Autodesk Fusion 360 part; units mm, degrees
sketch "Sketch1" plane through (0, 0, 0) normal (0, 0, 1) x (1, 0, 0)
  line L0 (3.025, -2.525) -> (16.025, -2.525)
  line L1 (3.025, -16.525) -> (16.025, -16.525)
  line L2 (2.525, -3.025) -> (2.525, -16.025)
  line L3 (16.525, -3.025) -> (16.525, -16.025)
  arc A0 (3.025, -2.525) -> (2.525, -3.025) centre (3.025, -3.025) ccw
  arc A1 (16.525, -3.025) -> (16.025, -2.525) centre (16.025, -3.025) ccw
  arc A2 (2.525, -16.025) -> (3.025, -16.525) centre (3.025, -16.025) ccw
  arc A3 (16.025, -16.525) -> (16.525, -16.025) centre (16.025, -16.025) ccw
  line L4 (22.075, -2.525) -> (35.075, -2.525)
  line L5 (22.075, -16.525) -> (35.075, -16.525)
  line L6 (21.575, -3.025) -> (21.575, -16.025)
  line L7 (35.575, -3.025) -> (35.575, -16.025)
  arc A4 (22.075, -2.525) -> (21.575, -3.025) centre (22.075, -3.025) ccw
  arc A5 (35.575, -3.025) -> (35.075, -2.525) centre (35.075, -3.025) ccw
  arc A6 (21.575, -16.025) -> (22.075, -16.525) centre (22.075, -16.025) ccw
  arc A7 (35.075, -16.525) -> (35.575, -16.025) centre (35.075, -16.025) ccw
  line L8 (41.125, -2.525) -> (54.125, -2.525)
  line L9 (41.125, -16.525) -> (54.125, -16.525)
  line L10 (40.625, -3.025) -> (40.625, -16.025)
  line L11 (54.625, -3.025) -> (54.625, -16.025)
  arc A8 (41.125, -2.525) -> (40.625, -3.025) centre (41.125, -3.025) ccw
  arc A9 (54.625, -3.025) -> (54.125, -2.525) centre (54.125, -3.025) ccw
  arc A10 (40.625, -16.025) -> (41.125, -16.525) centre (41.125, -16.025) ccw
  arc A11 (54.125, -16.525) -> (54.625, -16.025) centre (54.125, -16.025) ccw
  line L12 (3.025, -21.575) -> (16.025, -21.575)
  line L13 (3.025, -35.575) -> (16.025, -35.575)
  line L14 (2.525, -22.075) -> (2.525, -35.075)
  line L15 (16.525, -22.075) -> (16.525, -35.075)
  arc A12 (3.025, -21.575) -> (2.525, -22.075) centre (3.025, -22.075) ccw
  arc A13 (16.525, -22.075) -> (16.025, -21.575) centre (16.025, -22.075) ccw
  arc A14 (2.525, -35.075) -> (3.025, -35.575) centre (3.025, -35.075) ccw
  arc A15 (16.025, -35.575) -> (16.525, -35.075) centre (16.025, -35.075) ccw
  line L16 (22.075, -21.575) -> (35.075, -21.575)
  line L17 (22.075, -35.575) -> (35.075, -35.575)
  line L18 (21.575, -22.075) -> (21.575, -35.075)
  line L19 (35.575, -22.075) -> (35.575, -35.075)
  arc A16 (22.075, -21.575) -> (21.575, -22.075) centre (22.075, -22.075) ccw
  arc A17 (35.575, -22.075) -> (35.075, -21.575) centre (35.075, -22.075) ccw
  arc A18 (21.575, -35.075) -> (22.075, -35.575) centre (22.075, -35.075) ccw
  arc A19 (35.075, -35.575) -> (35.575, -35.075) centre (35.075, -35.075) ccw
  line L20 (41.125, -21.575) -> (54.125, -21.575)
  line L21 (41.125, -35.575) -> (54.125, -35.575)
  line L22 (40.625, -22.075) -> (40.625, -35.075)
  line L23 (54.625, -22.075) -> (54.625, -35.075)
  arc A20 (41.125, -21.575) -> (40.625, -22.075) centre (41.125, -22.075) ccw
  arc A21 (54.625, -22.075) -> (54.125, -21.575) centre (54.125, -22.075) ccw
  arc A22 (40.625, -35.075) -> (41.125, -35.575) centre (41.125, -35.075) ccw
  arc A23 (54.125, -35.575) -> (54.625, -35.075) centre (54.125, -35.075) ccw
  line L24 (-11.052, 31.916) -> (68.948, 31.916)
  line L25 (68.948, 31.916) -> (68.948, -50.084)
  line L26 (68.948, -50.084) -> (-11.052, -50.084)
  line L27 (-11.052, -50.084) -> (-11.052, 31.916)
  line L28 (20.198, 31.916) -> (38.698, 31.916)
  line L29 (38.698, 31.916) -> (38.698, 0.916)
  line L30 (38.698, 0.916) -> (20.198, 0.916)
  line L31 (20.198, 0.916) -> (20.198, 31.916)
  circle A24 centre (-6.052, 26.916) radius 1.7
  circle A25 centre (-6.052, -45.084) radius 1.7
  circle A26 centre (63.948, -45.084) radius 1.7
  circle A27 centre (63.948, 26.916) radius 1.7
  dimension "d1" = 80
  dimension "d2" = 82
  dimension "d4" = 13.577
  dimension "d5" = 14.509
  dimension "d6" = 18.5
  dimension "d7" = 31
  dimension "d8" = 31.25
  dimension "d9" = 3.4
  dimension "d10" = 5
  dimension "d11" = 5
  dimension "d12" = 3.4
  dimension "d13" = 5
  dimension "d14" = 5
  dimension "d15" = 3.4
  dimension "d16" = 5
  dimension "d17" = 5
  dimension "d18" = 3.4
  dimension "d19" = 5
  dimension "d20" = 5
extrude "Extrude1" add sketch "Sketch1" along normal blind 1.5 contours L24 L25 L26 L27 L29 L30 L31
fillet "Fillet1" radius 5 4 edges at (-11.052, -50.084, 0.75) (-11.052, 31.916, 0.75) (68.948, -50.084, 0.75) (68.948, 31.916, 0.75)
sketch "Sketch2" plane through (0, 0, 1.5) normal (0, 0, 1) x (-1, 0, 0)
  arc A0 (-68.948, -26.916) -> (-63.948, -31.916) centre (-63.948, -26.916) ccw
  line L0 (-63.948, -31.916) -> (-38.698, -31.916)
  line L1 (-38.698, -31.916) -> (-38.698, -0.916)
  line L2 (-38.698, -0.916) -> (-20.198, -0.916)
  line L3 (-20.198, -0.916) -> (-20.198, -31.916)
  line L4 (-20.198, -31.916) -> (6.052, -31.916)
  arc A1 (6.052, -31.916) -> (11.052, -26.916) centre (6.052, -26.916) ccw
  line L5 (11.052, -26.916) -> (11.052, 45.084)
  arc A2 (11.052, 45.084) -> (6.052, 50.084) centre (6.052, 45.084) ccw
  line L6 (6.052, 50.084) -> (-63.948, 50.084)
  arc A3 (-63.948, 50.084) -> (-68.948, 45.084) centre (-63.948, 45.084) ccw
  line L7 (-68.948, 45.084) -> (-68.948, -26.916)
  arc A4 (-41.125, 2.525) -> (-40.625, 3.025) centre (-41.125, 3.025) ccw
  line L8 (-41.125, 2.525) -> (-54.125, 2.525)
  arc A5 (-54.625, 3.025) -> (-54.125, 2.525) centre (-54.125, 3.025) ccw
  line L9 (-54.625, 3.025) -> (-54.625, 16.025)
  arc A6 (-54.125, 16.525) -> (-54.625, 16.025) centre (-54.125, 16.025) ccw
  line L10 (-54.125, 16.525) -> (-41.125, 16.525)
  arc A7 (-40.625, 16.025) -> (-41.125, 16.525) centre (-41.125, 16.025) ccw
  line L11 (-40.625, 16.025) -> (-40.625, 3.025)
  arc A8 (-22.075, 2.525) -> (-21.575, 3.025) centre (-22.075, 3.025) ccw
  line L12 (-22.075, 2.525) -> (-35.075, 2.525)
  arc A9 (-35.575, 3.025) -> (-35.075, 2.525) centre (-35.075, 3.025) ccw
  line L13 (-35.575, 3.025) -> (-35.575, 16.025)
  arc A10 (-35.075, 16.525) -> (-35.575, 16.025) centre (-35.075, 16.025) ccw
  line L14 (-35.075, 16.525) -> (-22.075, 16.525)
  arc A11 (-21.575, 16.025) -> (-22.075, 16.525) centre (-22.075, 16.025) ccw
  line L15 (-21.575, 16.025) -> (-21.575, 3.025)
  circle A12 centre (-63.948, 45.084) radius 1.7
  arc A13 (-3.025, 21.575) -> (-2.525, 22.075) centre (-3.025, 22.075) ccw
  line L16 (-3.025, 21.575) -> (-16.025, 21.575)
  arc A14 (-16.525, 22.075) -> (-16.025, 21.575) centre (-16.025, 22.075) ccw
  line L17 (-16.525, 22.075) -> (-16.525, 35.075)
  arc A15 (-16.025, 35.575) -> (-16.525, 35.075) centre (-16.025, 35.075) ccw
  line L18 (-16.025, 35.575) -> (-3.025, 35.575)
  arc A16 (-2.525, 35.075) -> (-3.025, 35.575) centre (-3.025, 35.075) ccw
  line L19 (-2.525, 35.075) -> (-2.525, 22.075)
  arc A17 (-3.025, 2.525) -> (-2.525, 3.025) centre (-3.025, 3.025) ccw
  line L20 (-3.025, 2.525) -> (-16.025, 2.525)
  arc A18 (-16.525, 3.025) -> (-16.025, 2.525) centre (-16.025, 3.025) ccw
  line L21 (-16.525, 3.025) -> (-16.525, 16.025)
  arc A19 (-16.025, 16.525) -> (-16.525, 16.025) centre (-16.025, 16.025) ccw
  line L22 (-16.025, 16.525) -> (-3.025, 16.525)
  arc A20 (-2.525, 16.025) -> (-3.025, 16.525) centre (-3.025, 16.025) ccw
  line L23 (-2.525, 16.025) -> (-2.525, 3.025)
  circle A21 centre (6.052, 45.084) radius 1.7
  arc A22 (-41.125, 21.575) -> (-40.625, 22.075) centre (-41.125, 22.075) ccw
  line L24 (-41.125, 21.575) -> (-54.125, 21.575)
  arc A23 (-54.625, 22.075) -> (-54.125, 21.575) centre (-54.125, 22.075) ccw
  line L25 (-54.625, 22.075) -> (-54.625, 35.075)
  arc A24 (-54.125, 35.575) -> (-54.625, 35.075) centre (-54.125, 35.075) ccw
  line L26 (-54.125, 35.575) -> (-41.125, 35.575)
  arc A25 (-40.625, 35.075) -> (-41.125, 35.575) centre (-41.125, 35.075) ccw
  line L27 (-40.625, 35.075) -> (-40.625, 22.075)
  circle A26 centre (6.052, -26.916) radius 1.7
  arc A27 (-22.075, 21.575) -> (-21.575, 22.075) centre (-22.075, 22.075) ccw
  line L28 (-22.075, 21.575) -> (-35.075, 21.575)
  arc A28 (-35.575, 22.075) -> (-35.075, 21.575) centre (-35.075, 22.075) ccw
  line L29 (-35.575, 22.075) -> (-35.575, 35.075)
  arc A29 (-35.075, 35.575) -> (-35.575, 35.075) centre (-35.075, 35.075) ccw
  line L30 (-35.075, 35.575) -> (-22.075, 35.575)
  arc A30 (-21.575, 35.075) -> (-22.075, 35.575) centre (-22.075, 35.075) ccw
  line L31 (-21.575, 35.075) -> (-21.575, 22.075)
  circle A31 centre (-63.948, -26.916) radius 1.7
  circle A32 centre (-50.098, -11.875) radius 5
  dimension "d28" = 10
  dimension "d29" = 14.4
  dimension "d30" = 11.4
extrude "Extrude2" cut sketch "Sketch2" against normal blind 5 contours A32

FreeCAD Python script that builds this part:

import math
import FreeCAD as App
import Part
import Sketcher
Q = App.Units.Quantity


def edges_at(feature, points):
    """Names of the edges that pass closest to the given points."""
    edges = feature.Shape.Edges
    near = lambda p: min(range(len(edges)), key=lambda i: edges[i].distToShape(Part.Vertex(*p))[0])
    return sorted({f"Edge{near(p) + 1}" for p in points})


def add_polygon(sketch, points):
    """Adds a closed chain of lines whose ends are joined by coincident constraints."""
    first, n = sketch.GeometryCount, len(points)
    for a, b in zip(points, points[1:] + points[:1]):
        sketch.addGeometry(Part.LineSegment(App.Vector(*a, 0), App.Vector(*b, 0)), False)
    for i in range(n):
        sketch.addConstraint(Sketcher.Constraint("Coincident", first + i, 2, first + (i + 1) % n, 1))

doc = App.newDocument("Part")
body = doc.addObject("PartDesign::Body", "Body")

sketch1 = body.newObject("Sketcher::SketchObject", "Sketch")
sketch1.AttachmentSupport = (doc.getObject("XY_Plane"), [""])
sketch1.MapMode = "FlatFace"
add_polygon(sketch1, [(20.2, 31.9), (-11.1, 31.9), (-11.1, -50.1), (68.9, -50.1), (68.9, 31.9), (38.7, 31.9), (38.7, 0.9), (20.2, 0.9)])
sketch1.addGeometry(Part.Circle(App.Vector(-6.1, -45.1, 0), App.Vector(0, 0, 1), 1.7), False)
sketch1.addGeometry(Part.ArcOfCircle(Part.Circle(App.Vector(3, -22.1, 0), App.Vector(0, 0, 1), 0.5), math.radians(90), math.radians(180)), False)
sketch1.addGeometry(Part.LineSegment(App.Vector(3, -21.6, 0), App.Vector(16, -21.6, 0)), False)
sketch1.addGeometry(Part.ArcOfCircle(Part.Circle(App.Vector(16, -22.1, 0), App.Vector(0, 0, 1), 0.5), math.radians(0), math.radians(90)), False)
sketch1.addGeometry(Part.LineSegment(App.Vector(16.5, -22.1, 0), App.Vector(16.5, -35.1, 0)), False)
sketch1.addGeometry(Part.ArcOfCircle(Part.Circle(App.Vector(16, -35.1, 0), App.Vector(0, 0, 1), 0.5), math.radians(-90), math.radians(0)), False)
sketch1.addGeometry(Part.LineSegment(App.Vector(16, -35.6, 0), App.Vector(3, -35.6, 0)), False)
sketch1.addGeometry(Part.ArcOfCircle(Part.Circle(App.Vector(3, -35.1, 0), App.Vector(0, 0, 1), 0.5), math.radians(180), math.radians(270)), False)
sketch1.addGeometry(Part.LineSegment(App.Vector(2.5, -35.1, 0), App.Vector(2.5, -22.1, 0)), False)
sketch1.addGeometry(Part.ArcOfCircle(Part.Circle(App.Vector(22.1, -22.1, 0), App.Vector(0, 0, 1), 0.5), math.radians(90), math.radians(180)), False)
sketch1.addGeometry(Part.LineSegment(App.Vector(22.1, -21.6, 0), App.Vector(35.1, -21.6, 0)), False)
sketch1.addGeometry(Part.ArcOfCircle(Part.Circle(App.Vector(35.1, -22.1, 0), App.Vector(0, 0, 1), 0.5), math.radians(0), math.radians(90)), False)
sketch1.addGeometry(Part.LineSegment(App.Vector(35.6, -22.1, 0), App.Vector(35.6, -35.1, 0)), False)
sketch1.addGeometry(Part.ArcOfCircle(Part.Circle(App.Vector(35.1, -35.1, 0), App.Vector(0, 0, 1), 0.5), math.radians(-90), math.radians(0)), False)
sketch1.addGeometry(Part.LineSegment(App.Vector(35.1, -35.6, 0), App.Vector(22.1, -35.6, 0)), False)
sketch1.addGeometry(Part.ArcOfCircle(Part.Circle(App.Vector(22.1, -35.1, 0), App.Vector(0, 0, 1), 0.5), math.radians(180), math.radians(270)), False)
sketch1.addGeometry(Part.LineSegment(App.Vector(21.6, -35.1, 0), App.Vector(21.6, -22.1, 0)), False)
sketch1.addGeometry(Part.ArcOfCircle(Part.Circle(App.Vector(3, -3, 0), App.Vector(0, 0, 1), 0.5), math.radians(90), math.radians(180)), False)
sketch1.addGeometry(Part.LineSegment(App.Vector(3, -2.5, 0), App.Vector(16, -2.5, 0)), False)
sketch1.addGeometry(Part.ArcOfCircle(Part.Circle(App.Vector(16, -3, 0), App.Vector(0, 0, 1), 0.5), math.radians(0), math.radians(90)), False)
sketch1.addGeometry(Part.LineSegment(App.Vector(16.5, -3, 0), App.Vector(16.5, -16, 0)), False)
sketch1.addGeometry(Part.ArcOfCircle(Part.Circle(App.Vector(16, -16, 0), App.Vector(0, 0, 1), 0.5), math.radians(-90), math.radians(0)), False)
sketch1.addGeometry(Part.LineSegment(App.Vector(16, -16.5, 0), App.Vector(3, -16.5, 0)), False)
sketch1.addGeometry(Part.ArcOfCircle(Part.Circle(App.Vector(3, -16, 0), App.Vector(0, 0, 1), 0.5), math.radians(180), math.radians(270)), False)
sketch1.addGeometry(Part.LineSegment(App.Vector(2.5, -16, 0), App.Vector(2.5, -3, 0)), False)
sketch1.addGeometry(Part.ArcOfCircle(Part.Circle(App.Vector(22.1, -3, 0), App.Vector(0, 0, 1), 0.5), math.radians(90), math.radians(180)), False)
sketch1.addGeometry(Part.LineSegment(App.Vector(22.1, -2.5, 0), App.Vector(35.1, -2.5, 0)), False)
sketch1.addGeometry(Part.ArcOfCircle(Part.Circle(App.Vector(35.1, -3, 0), App.Vector(0, 0, 1), 0.5), math.radians(0), math.radians(90)), False)
sketch1.addGeometry(Part.LineSegment(App.Vector(35.6, -3, 0), App.Vector(35.6, -16, 0)), False)
sketch1.addGeometry(Part.ArcOfCircle(Part.Circle(App.Vector(35.1, -16, 0), App.Vector(0, 0, 1), 0.5), math.radians(-90), math.radians(0)), False)
sketch1.addGeometry(Part.LineSegment(App.Vector(35.1, -16.5, 0), App.Vector(22.1, -16.5, 0)), False)
sketch1.addGeometry(Part.ArcOfCircle(Part.Circle(App.Vector(22.1, -16, 0), App.Vector(0, 0, 1), 0.5), math.radians(180), math.radians(270)), False)
sketch1.addGeometry(Part.LineSegment(App.Vector(21.6, -16, 0), App.Vector(21.6, -3, 0)), False)
sketch1.addGeometry(Part.Circle(App.Vector(63.9, -45.1, 0), App.Vector(0, 0, 1), 1.7), False)
sketch1.addGeometry(Part.ArcOfCircle(Part.Circle(App.Vector(41.1, -22.1, 0), App.Vector(0, 0, 1), 0.5), math.radians(90), math.radians(180)), False)
sketch1.addGeometry(Part.LineSegment(App.Vector(41.1, -21.6, 0), App.Vector(54.1, -21.6, 0)), False)
sketch1.addGeometry(Part.ArcOfCircle(Part.Circle(App.Vector(54.1, -22.1, 0), App.Vector(0, 0, 1), 0.5), math.radians(0), math.radians(90)), False)
sketch1.addGeometry(Part.LineSegment(App.Vector(54.6, -22.1, 0), App.Vector(54.6, -35.1, 0)), False)
sketch1.addGeometry(Part.ArcOfCircle(Part.Circle(App.Vector(54.1, -35.1, 0), App.Vector(0, 0, 1), 0.5), math.radians(-90), math.radians(0)), False)
sketch1.addGeometry(Part.LineSegment(App.Vector(54.1, -35.6, 0), App.Vector(41.1, -35.6, 0)), False)
sketch1.addGeometry(Part.ArcOfCircle(Part.Circle(App.Vector(41.1, -35.1, 0), App.Vector(0, 0, 1), 0.5), math.radians(180), math.radians(270)), False)
sketch1.addGeometry(Part.LineSegment(App.Vector(40.6, -35.1, 0), App.Vector(40.6, -22.1, 0)), False)
sketch1.addGeometry(Part.ArcOfCircle(Part.Circle(App.Vector(41.1, -3, 0), App.Vector(0, 0, 1), 0.5), math.radians(90), math.radians(180)), False)
sketch1.addGeometry(Part.LineSegment(App.Vector(41.1, -2.5, 0), App.Vector(54.1, -2.5, 0)), False)
sketch1.addGeometry(Part.ArcOfCircle(Part.Circle(App.Vector(54.1, -3, 0), App.Vector(0, 0, 1), 0.5), math.radians(0), math.radians(90)), False)
sketch1.addGeometry(Part.LineSegment(App.Vector(54.6, -3, 0), App.Vector(54.6, -16, 0)), False)
sketch1.addGeometry(Part.ArcOfCircle(Part.Circle(App.Vector(54.1, -16, 0), App.Vector(0, 0, 1), 0.5), math.radians(-90), math.radians(0)), False)
sketch1.addGeometry(Part.LineSegment(App.Vector(54.1, -16.5, 0), App.Vector(41.1, -16.5, 0)), False)
sketch1.addGeometry(Part.ArcOfCircle(Part.Circle(App.Vector(41.1, -16, 0), App.Vector(0, 0, 1), 0.5), math.radians(180), math.radians(270)), False)
sketch1.addGeometry(Part.LineSegment(App.Vector(40.6, -16, 0), App.Vector(40.6, -3, 0)), False)
sketch1.addGeometry(Part.Circle(App.Vector(-6.1, 26.9, 0), App.Vector(0, 0, 1), 1.7), False)
sketch1.addGeometry(Part.Circle(App.Vector(63.9, 26.9, 0), App.Vector(0, 0, 1), 1.7), False)
sketch1.addConstraint([
    Sketcher.Constraint("Tangent", 9, 1, 10, 1),
    Sketcher.Constraint("Tangent", 10, 2, 11, 2),
    Sketcher.Constraint("Tangent", 11, 1, 12, 1),
    Sketcher.Constraint("Tangent", 12, 2, 13, 2),
    Sketcher.Constraint("Tangent", 13, 1, 14, 1),
    Sketcher.Constraint("Tangent", 14, 2, 15, 2),
    Sketcher.Constraint("Tangent", 15, 1, 16, 1),
    Sketcher.Constraint("Tangent", 16, 2, 9, 2),
    Sketcher.Constraint("Tangent", 17, 1, 18, 1),
    Sketcher.Constraint("Tangent", 18, 2, 19, 2),
    Sketcher.Constraint("Tangent", 19, 1, 20, 1),
    Sketcher.Constraint("Tangent", 20, 2, 21, 2),
    Sketcher.Constraint("Tangent", 21, 1, 22, 1),
    Sketcher.Constraint("Tangent", 22, 2, 23, 2),
    Sketcher.Constraint("Tangent", 23, 1, 24, 1),
    Sketcher.Constraint("Tangent", 24, 2, 17, 2),
    Sketcher.Constraint("Tangent", 25, 1, 26, 1),
    Sketcher.Constraint("Tangent", 26, 2, 27, 2),
    Sketcher.Constraint("Tangent", 27, 1, 28, 1),
    Sketcher.Constraint("Tangent", 28, 2, 29, 2),
    Sketcher.Constraint("Tangent", 29, 1, 30, 1),
    Sketcher.Constraint("Tangent", 30, 2, 31, 2),
    Sketcher.Constraint("Tangent", 31, 1, 32, 1),
    Sketcher.Constraint("Tangent", 32, 2, 25, 2),
    Sketcher.Constraint("Tangent", 33, 1, 34, 1),
    Sketcher.Constraint("Tangent", 34, 2, 35, 2),
    Sketcher.Constraint("Tangent", 35, 1, 36, 1),
    Sketcher.Constraint("Tangent", 36, 2, 37, 2),
    Sketcher.Constraint("Tangent", 37, 1, 38, 1),
    Sketcher.Constraint("Tangent", 38, 2, 39, 2),
    Sketcher.Constraint("Tangent", 39, 1, 40, 1),
    Sketcher.Constraint("Tangent", 40, 2, 33, 2),
    Sketcher.Constraint("Tangent", 42, 1, 43, 1),
    Sketcher.Constraint("Tangent", 43, 2, 44, 2),
    Sketcher.Constraint("Tangent", 44, 1, 45, 1),
    Sketcher.Constraint("Tangent", 45, 2, 46, 2),
    Sketcher.Constraint("Tangent", 46, 1, 47, 1),
    Sketcher.Constraint("Tangent", 47, 2, 48, 2),
    Sketcher.Constraint("Tangent", 48, 1, 49, 1),
    Sketcher.Constraint("Tangent", 49, 2, 42, 2),
    Sketcher.Constraint("Tangent", 50, 1, 51, 1),
    Sketcher.Constraint("Tangent", 51, 2, 52, 2),
    Sketcher.Constraint("Tangent", 52, 1, 53, 1),
    Sketcher.Constraint("Tangent", 53, 2, 54, 2),
    Sketcher.Constraint("Tangent", 54, 1, 55, 1),
    Sketcher.Constraint("Tangent", 55, 2, 56, 2),
    Sketcher.Constraint("Tangent", 56, 1, 57, 1),
    Sketcher.Constraint("Tangent", 57, 2, 50, 2),
    Sketcher.Constraint("Horizontal", 0),
    Sketcher.Constraint("Vertical", 1),
    Sketcher.Constraint("Horizontal", 2),
    Sketcher.Constraint("Vertical", 3),
    Sketcher.Constraint("Horizontal", 4),
    Sketcher.Constraint("Vertical", 5),
    Sketcher.Constraint("Horizontal", 6),
    Sketcher.Constraint("Vertical", 7),
    Sketcher.Constraint("Horizontal", 10),
    Sketcher.Constraint("Vertical", 12),
    Sketcher.Constraint("Horizontal", 14),
    Sketcher.Constraint("Vertical", 16),
    Sketcher.Constraint("Horizontal", 18),
    Sketcher.Constraint("Vertical", 20),
    Sketcher.Constraint("Horizontal", 22),
    Sketcher.Constraint("Vertical", 24),
    Sketcher.Constraint("Horizontal", 26),
    Sketcher.Constraint("Vertical", 28),
    Sketcher.Constraint("Horizontal", 30),
    Sketcher.Constraint("Vertical", 32),
    Sketcher.Constraint("Horizontal", 34),
    Sketcher.Constraint("Vertical", 36),
    Sketcher.Constraint("Horizontal", 38),
    Sketcher.Constraint("Vertical", 40),
    Sketcher.Constraint("Horizontal", 43),
    Sketcher.Constraint("Vertical", 45),
    Sketcher.Constraint("Horizontal", 47),
    Sketcher.Constraint("Vertical", 49),
    Sketcher.Constraint("Horizontal", 51),
    Sketcher.Constraint("Vertical", 53),
    Sketcher.Constraint("Horizontal", 55),
    Sketcher.Constraint("Vertical", 57),
    Sketcher.Constraint("Equal", 9, 11),
    Sketcher.Constraint("Equal", 11, 13),
    Sketcher.Constraint("Equal", 13, 15),
    Sketcher.Constraint("Equal", 15, 17),
    Sketcher.Constraint("Equal", 17, 19),
    Sketcher.Constraint("Equal", 19, 21),
    Sketcher.Constraint("Equal", 21, 23),
    Sketcher.Constraint("Equal", 23, 25),
    Sketcher.Constraint("Equal", 25, 27),
    Sketcher.Constraint("Equal", 27, 29),
    Sketcher.Constraint("Equal", 29, 31),
    Sketcher.Constraint("Equal", 31, 33),
    Sketcher.Constraint("Equal", 33, 35),
    Sketcher.Constraint("Equal", 35, 37),
    Sketcher.Constraint("Equal", 37, 39),
    Sketcher.Constraint("Equal", 8, 41),
    Sketcher.Constraint("Equal", 39, 42),
    Sketcher.Constraint("Equal", 42, 44),
    Sketcher.Constraint("Equal", 44, 46),
    Sketcher.Constraint("Equal", 46, 48),
    Sketcher.Constraint("Equal", 48, 50),
    Sketcher.Constraint("Equal", 50, 52),
    Sketcher.Constraint("Equal", 52, 54),
    Sketcher.Constraint("Equal", 54, 56),
    Sketcher.Constraint("Equal", 41, 58),
    Sketcher.Constraint("Equal", 58, 59),
    Sketcher.Constraint("Horizontal", 11, 3, 17, 3),
    Sketcher.Constraint("Horizontal", 15, 3, 21, 3),
    Sketcher.Constraint("Horizontal", 27, 3, 33, 3),
    Sketcher.Constraint("Horizontal", 31, 3, 37, 3),
    Sketcher.Constraint("Horizontal", 8, 3, 41, 3),
    Sketcher.Constraint("Horizontal", 19, 3, 42, 3),
    Sketcher.Constraint("Horizontal", 23, 3, 46, 3),
    Sketcher.Constraint("Horizontal", 35, 3, 50, 3),
    Sketcher.Constraint("Horizontal", 39, 3, 54, 3),
    Sketcher.Constraint("Horizontal", 58, 3, 59, 3),
    Sketcher.Constraint("Horizontal", 0, 2, 3, 2),
    Sketcher.Constraint("Vertical", 15, 3, 25, 3),
    Sketcher.Constraint("Vertical", 13, 3, 27, 3),
    Sketcher.Constraint("Vertical", 23, 3, 33, 3),
    Sketcher.Constraint("Vertical", 21, 3, 35, 3),
    Sketcher.Constraint("Vertical", 48, 3, 50, 3),
    Sketcher.Constraint("Vertical", 46, 3, 52, 3),
    Sketcher.Constraint("Vertical", 8, 3, 58, 3),
    Sketcher.Constraint("Vertical", 41, 3, 59, 3),
    Sketcher.Constraint("Equal", 14, 18),
    Sketcher.Constraint("Equal", 38, 43),
    Sketcher.Constraint("Equal", 55, 12),
    Sketcher.Constraint("Equal", 24, 28),
    Sketcher.Constraint("Diameter", 8, Q("3.4 mm")),
    Sketcher.Constraint("DistanceX", 2, 1, 2, 2, Q("80 mm")),
    Sketcher.Constraint("DistanceY", 1, 2, 1, 1, Q("82 mm")),
    Sketcher.Constraint("DistanceY", 5, 2, 5, 1, Q("31 mm")),
    Sketcher.Constraint("DistanceX", 6, 2, 6, 1, Q("18.5 mm")),
    Sketcher.Constraint("DistanceX", 0, 2, 0, 1, Q("31.25 mm")),
    Sketcher.Constraint("Radius", 9, Q("0.5 mm")),
    Sketcher.Constraint("DistanceX", 10, 1, 10, 2, Q("13 mm")),
    Sketcher.Constraint("DistanceX", 8, 3, -1, 1, Q("6.052 mm")),
    Sketcher.Constraint("DistanceY", 8, 3, -1, 1, Q("45.084 mm")),
    Sketcher.Constraint("DistanceX", -1, 1, 9, 3, Q("3.025 mm")),
    Sketcher.Constraint("DistanceY", 9, 3, -1, 1, Q("22.075 mm")),
    Sketcher.Constraint("DistanceX", -1, 1, 17, 3, Q("22.075 mm")),
    Sketcher.Constraint("DistanceY", 25, 3, -1, 1, Q("3.025 mm")),
    Sketcher.Constraint("DistanceX", -1, 1, 41, 3, Q("63.948 mm")),
    Sketcher.Constraint("DistanceX", -1, 1, 42, 3, Q("41.125 mm")),
    Sketcher.Constraint("DistanceY", -1, 1, 58, 3, Q("26.916 mm")),
    Sketcher.Constraint("DistanceX", 0, 2, -1, 1, Q("11.052 mm")),
    Sketcher.Constraint("DistanceY", -1, 1, 0, 2, Q("31.916 mm")),
])
pad1 = body.newObject("PartDesign::Pad", "Pad")
pad1.Profile = sketch1
pad1.Length = 1.5
doc.recompute()

fillet = body.newObject("PartDesign::Fillet", "Fillet")
fillet.Base = (pad1, edges_at(pad1, [
    (-11.052, -50.084, 0.75),
    (-11.052, 31.916, 0.75),
    (68.948, -50.084, 0.75),
    (68.948, 31.916, 0.75),
]))
fillet.Radius = 5

sketch2 = body.newObject("Sketcher::SketchObject", "Sketch001")
sketch2.AttachmentSupport = (doc.getObject("XY_Plane"), [""])
sketch2.MapMode = "FlatFace"
sketch2.AttachmentOffset = App.Placement(App.Vector(0, 0, 1.5), App.Rotation())
sketch2.addGeometry(Part.Circle(App.Vector(50, 12, 0), App.Vector(0, 0, 1), 5), False)
sketch2.addConstraint([
    Sketcher.Constraint("Diameter", 0, Q("10 mm")),
    Sketcher.Constraint("DistanceX", -1, 1, 0, 3, Q("50.098 mm")),
    Sketcher.Constraint("DistanceY", -1, 1, 0, 3, Q("11.875 mm")),
])
pocket1 = body.newObject("PartDesign::Pocket", "Pocket")
pocket1.Profile = sketch2
pocket1.Length = 5

doc.recompute()
